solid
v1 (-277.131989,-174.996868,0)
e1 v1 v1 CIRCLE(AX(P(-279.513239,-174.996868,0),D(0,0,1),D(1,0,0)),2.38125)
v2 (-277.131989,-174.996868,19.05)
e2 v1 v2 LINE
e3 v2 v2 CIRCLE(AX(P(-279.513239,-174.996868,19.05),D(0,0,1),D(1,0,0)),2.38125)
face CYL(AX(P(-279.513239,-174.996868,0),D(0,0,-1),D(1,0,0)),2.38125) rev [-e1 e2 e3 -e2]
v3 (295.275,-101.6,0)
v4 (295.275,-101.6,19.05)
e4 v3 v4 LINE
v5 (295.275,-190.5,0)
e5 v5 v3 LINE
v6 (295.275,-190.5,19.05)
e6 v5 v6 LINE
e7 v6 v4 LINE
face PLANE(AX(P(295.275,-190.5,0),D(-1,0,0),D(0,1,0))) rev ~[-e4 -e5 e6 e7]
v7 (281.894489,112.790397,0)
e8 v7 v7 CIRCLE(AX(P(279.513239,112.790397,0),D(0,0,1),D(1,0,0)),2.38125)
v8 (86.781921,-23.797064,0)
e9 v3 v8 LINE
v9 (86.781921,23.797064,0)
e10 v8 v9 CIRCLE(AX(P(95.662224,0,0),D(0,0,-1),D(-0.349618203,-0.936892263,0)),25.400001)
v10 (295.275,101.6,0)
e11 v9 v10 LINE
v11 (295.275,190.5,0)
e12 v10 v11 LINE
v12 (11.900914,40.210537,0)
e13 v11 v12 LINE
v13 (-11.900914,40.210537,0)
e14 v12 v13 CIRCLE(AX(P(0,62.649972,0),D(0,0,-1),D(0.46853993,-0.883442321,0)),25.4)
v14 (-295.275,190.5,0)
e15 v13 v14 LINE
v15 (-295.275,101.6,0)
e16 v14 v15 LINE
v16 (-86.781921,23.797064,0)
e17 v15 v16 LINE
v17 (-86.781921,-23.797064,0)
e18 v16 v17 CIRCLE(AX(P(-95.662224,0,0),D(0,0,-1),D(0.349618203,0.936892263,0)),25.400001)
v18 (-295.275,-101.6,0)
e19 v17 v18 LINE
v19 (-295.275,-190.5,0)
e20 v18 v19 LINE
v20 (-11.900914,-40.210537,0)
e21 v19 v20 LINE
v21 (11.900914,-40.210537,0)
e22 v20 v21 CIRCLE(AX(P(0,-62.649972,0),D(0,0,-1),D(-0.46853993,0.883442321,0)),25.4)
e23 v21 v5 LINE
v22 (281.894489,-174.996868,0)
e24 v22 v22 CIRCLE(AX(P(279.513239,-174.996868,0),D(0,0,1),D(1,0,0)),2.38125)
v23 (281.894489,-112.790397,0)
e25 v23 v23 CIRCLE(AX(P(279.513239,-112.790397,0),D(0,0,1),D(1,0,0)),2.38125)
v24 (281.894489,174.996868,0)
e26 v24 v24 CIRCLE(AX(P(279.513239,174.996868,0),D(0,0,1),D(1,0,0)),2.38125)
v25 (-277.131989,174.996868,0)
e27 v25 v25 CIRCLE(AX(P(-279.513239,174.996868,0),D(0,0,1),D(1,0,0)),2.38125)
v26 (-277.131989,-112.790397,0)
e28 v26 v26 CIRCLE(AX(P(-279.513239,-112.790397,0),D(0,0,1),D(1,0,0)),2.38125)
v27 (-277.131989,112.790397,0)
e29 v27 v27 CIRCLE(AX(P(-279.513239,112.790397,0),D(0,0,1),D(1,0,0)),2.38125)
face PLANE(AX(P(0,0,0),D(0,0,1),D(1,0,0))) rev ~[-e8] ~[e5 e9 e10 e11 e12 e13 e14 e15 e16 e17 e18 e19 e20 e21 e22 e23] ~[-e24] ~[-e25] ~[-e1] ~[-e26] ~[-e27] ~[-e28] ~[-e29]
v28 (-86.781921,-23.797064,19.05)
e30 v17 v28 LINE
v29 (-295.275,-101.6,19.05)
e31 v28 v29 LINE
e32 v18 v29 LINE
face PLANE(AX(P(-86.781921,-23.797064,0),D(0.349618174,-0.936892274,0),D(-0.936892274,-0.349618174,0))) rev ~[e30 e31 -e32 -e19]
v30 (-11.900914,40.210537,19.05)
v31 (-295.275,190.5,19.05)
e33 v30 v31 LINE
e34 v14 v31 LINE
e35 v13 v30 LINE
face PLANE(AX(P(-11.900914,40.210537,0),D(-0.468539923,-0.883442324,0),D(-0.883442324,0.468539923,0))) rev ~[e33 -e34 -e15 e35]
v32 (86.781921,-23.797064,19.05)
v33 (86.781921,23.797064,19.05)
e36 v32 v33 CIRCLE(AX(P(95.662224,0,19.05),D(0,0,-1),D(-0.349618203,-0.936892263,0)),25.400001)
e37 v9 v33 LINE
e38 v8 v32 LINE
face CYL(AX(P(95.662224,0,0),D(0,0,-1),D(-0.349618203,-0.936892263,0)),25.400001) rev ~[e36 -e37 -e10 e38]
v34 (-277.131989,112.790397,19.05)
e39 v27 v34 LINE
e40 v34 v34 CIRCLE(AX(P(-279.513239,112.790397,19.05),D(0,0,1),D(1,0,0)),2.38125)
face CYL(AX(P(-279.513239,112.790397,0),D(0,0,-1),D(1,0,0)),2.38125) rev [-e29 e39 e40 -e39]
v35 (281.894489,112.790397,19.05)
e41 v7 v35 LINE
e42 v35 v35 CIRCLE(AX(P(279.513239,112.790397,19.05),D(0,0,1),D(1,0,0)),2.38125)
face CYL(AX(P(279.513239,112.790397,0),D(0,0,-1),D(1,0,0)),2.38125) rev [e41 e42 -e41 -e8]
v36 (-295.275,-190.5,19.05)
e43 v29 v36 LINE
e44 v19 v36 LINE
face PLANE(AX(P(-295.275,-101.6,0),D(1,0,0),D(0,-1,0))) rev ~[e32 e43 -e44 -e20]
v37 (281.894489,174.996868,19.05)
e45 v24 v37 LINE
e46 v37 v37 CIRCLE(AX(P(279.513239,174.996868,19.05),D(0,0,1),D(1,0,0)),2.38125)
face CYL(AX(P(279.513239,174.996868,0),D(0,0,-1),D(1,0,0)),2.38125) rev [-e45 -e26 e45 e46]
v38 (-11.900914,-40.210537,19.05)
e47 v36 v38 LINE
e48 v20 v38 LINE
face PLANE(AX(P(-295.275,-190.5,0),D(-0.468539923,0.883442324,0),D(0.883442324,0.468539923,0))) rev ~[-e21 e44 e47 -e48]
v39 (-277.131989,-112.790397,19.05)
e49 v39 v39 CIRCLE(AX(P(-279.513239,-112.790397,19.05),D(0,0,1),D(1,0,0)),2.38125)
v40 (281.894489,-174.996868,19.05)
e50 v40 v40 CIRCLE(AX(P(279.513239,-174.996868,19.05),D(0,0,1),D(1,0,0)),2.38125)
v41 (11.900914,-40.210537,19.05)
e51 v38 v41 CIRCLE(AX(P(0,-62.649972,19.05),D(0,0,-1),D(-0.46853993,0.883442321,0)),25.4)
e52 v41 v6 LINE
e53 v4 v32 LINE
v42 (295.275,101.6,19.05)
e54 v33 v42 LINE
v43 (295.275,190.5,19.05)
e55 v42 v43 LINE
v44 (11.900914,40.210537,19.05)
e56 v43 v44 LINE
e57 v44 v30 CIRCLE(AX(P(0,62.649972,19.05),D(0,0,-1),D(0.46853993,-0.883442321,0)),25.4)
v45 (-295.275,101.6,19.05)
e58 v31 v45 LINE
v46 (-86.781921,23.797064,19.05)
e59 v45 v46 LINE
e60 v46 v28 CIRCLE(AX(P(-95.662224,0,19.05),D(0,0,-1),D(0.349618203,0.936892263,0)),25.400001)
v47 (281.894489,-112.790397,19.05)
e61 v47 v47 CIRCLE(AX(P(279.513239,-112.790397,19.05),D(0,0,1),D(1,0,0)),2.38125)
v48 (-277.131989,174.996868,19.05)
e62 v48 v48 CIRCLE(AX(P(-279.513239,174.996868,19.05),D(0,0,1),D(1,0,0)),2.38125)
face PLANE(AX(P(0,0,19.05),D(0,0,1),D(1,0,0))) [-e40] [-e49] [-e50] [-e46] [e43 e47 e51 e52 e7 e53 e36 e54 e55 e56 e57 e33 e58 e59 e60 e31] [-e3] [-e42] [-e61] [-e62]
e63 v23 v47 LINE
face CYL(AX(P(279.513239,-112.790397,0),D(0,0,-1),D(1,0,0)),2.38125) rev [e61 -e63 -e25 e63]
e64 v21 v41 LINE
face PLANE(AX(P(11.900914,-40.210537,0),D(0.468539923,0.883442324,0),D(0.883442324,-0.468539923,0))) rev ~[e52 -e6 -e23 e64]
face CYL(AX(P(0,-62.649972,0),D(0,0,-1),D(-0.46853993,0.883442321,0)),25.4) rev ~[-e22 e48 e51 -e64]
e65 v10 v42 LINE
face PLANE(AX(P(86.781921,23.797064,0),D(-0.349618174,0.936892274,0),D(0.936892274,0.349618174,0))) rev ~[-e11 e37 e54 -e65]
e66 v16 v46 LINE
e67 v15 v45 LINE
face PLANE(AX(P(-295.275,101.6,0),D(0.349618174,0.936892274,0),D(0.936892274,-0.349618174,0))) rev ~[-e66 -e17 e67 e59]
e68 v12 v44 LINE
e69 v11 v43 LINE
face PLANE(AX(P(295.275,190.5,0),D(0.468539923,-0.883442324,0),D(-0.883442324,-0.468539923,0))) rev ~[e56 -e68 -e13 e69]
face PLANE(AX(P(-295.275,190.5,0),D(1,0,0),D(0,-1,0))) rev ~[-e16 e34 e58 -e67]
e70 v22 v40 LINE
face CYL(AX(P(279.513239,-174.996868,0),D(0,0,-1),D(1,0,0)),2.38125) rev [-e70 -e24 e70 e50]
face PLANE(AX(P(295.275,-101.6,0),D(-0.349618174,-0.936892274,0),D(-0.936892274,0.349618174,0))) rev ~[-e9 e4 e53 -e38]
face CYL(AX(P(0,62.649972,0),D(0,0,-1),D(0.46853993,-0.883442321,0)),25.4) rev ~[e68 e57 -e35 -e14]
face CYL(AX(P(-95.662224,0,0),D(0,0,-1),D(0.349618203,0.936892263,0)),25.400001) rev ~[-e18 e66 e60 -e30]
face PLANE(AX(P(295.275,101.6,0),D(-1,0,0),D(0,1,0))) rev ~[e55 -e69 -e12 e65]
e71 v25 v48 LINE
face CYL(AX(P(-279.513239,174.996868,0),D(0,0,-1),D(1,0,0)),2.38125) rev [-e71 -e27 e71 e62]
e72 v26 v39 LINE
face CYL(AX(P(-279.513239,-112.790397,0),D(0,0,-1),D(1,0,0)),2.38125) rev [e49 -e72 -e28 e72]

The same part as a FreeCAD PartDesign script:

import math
import FreeCAD as App
import Part
import Sketcher

V = App.Vector
Q = App.Units.Quantity

doc = App.newDocument("Part")
params = doc.addObject("Spreadsheet::Sheet", "Params")
for row, (alias, value) in enumerate([
    ("sketch1_radius", "1 in"),
    ("sketch1_radius2", "1 in"),
    ("sketch1_radius3", "1 in"),
    ("sketch1_radius4", "1 in"),
    ("sketch1_diameter", "0.1875 in"),
    ("pad1_length", "0.75 in"),
], start=1):
    params.set(f"A{row}", alias)
    params.set(f"B{row}", "=" + value)
    params.setAlias(f"B{row}", alias)

body = doc.addObject("PartDesign::Body", "Body")

# Sketch on XY plane
sketch1 = body.newObject("Sketcher::SketchObject", "Sketch")
sketch1.AttachmentSupport = (doc.getObject("XY_Plane"), [""])
sketch1.MapMode = "FlatFace"
sketch1.addGeometry([
    Part.LineSegment(V(-11.900914, 40.210537, 0), V(-295.275, 190.5, 0)),  # 0
    Part.LineSegment(V(-295.275, 190.5, 0), V(-295.275, 101.6, 0)),  # 1
    Part.LineSegment(V(-295.275, 101.6, 0), V(-86.781921, 23.797064, 0)),  # 2
    Part.ArcOfCircle(Part.Circle(V(-95.662224, 0, 0), V(0, 0, 1), 25.400001), math.radians(-69.536035), math.radians(69.536035)),  # 3
    Part.LineSegment(V(-86.781921, -23.797064, 0), V(-295.275, -101.6, 0)),  # 4
    Part.LineSegment(V(-295.275, -101.6, 0), V(-295.275, -190.5, 0)),  # 5
    Part.LineSegment(V(-295.275, -190.5, 0), V(-11.900914, -40.210537, 0)),  # 6
    Part.ArcOfCircle(Part.Circle(V(0, -62.649972, 0), V(0, 0, 1), 25.4), math.radians(62.060438), math.radians(117.939562)),  # 7
    Part.LineSegment(V(11.900914, -40.210537, 0), V(295.275, -190.5, 0)),  # 8
    Part.LineSegment(V(295.275, -190.5, 0), V(295.275, -101.6, 0)),  # 9
    Part.LineSegment(V(295.275, -101.6, 0), V(86.781921, -23.797064, 0)),  # 10
    Part.ArcOfCircle(Part.Circle(V(95.662224, 0, 0), V(0, 0, 1), 25.400001), math.radians(110.463965), math.radians(249.536035)),  # 11
    Part.LineSegment(V(86.781921, 23.797064, 0), V(295.275, 101.6, 0)),  # 12
    Part.LineSegment(V(295.275, 101.6, 0), V(295.275, 190.5, 0)),  # 13
    Part.LineSegment(V(295.275, 190.5, 0), V(11.900914, 40.210537, 0)),  # 14
    Part.ArcOfCircle(Part.Circle(V(0, 62.649972, 0), V(0, 0, 1), 25.4), math.radians(-117.939562), math.radians(-62.060438)),  # 15
    Part.Circle(V(-279.513239, -174.996868, 0), V(0, 0, 1), 2.38125),  # 16
    Part.Circle(V(-279.513239, -112.790397, 0), V(0, 0, 1), 2.38125),  # 17
    Part.Circle(V(279.513239, -174.996868, 0), V(0, 0, 1), 2.38125),  # 18
    Part.Circle(V(279.513239, -112.790397, 0), V(0, 0, 1), 2.38125),  # 19
    Part.Circle(V(-279.513239, 112.790397, 0), V(0, 0, 1), 2.38125),  # 20
    Part.Circle(V(-279.513239, 174.996868, 0), V(0, 0, 1), 2.38125),  # 21
    Part.Circle(V(279.513239, 112.790397, 0), V(0, 0, 1), 2.38125),  # 22
    Part.Circle(V(279.513239, 174.996868, 0), V(0, 0, 1), 2.38125),  # 23
], False)
sketch1.addConstraint([
    Sketcher.Constraint("Coincident", 0, 2, 1, 1),
    Sketcher.Constraint("Coincident", 1, 2, 2, 1),
    Sketcher.Constraint("Coincident", 2, 2, 3, 2),
    Sketcher.Constraint("Coincident", 3, 1, 4, 1),
    Sketcher.Constraint("Coincident", 4, 2, 5, 1),
    Sketcher.Constraint("Coincident", 5, 2, 6, 1),
    Sketcher.Constraint("Coincident", 6, 2, 7, 2),
    Sketcher.Constraint("Coincident", 7, 1, 8, 1),
    Sketcher.Constraint("Coincident", 8, 2, 9, 1),
    Sketcher.Constraint("Coincident", 9, 2, 10, 1),
    Sketcher.Constraint("Coincident", 10, 2, 11, 2),
    Sketcher.Constraint("Coincident", 11, 1, 12, 1),
    Sketcher.Constraint("Coincident", 12, 2, 13, 1),
    Sketcher.Constraint("Coincident", 13, 2, 14, 1),
    Sketcher.Constraint("Coincident", 14, 2, 15, 2),
    Sketcher.Constraint("Coincident", 15, 1, 0, 1),
    Sketcher.Constraint("Vertical", 1),
    Sketcher.Constraint("Vertical", 5),
    Sketcher.Constraint("Vertical", 9),
    Sketcher.Constraint("Vertical", 13),
    Sketcher.Constraint("PointOnObject", 3, 3, -1),
    Sketcher.Constraint("PointOnObject", 7, 3, -2),
    Sketcher.Constraint("PointOnObject", 11, 3, -1),
    Sketcher.Constraint("PointOnObject", 15, 3, -2),
    Sketcher.Constraint("Radius", 3, Q("1 in")),
    Sketcher.Constraint("Radius", 7, Q("1 in")),
    Sketcher.Constraint("Radius", 11, Q("1 in")),
    Sketcher.Constraint("Radius", 15, Q("1 in")),
    Sketcher.Constraint("Diameter", 16, Q("0.1875 in")),
    Sketcher.Constraint("Diameter", 17, Q("0.1875 in")),
    Sketcher.Constraint("Diameter", 18, Q("0.1875 in")),
    Sketcher.Constraint("Diameter", 19, Q("0.1875 in")),
    Sketcher.Constraint("Diameter", 20, Q("0.1875 in")),
    Sketcher.Constraint("Diameter", 21, Q("0.1875 in")),
    Sketcher.Constraint("Diameter", 22, Q("0.1875 in")),
    Sketcher.Constraint("Diameter", 23, Q("0.1875 in")),
    Sketcher.Constraint("DistanceY", 1, 2, 1, 1, Q("3.5 in")),
    Sketcher.Constraint("DistanceY", 5, 2, 5, 1, Q("3.5 in")),
    Sketcher.Constraint("DistanceY", 9, 1, 9, 2, Q("3.5 in")),
    Sketcher.Constraint("DistanceY", 13, 1, 13, 2, Q("3.5 in")),
    Sketcher.Constraint("DistanceY", -1, 1, 1, 2, Q("4 in")),
    Sketcher.Constraint("DistanceY", 4, 2, -1, 1, Q("4 in")),
    Sketcher.Constraint("DistanceY", 9, 2, -1, 1, Q("4 in")),
    Sketcher.Constraint("DistanceY", -1, 1, 12, 2, Q("4 in")),
    Sketcher.Constraint("DistanceX", 0, 2, -1, 1, Q("11.625 in")),
    Sketcher.Constraint("DistanceX", 4, 2, -1, 1, Q("11.625 in")),
    Sketcher.Constraint("DistanceX", -1, 1, 8, 2, Q("11.625 in")),
    Sketcher.Constraint("DistanceX", -1, 1, 12, 2, Q("11.625 in")),
    Sketcher.Constraint("DistanceY", 6, 2, 2, 2, Q("64.007601 mm")),
    Sketcher.Constraint("DistanceY", 7, 1, 11, 1, Q("64.007601 mm")),
    Sketcher.Constraint("DistanceY", 6, 2, 11, 1, Q("64.007601 mm")),
    Sketcher.Constraint("DistanceY", 7, 3, -1, 1, Q("62.649972 mm")),
    Sketcher.Constraint("DistanceY", -1, 1, 15, 3, Q("62.649972 mm")),
    Sketcher.Constraint("DistanceX", 16, 3, -1, 1, Q("279.513239 mm")),
    Sketcher.Constraint("DistanceY", 16, 3, -1, 1, Q("174.996868 mm")),
    Sketcher.Constraint("DistanceX", 17, 3, -1, 1, Q("279.513239 mm")),
    Sketcher.Constraint("DistanceX", -1, 1, 18, 3, Q("279.513239 mm")),
    Sketcher.Constraint("DistanceY", 18, 3, -1, 1, Q("174.996868 mm")),
    Sketcher.Constraint("DistanceX", -1, 1, 19, 3, Q("279.513239 mm")),
    Sketcher.Constraint("DistanceX", 20, 3, -1, 1, Q("279.513239 mm")),
    Sketcher.Constraint("DistanceX", 21, 3, -1, 1, Q("279.513239 mm")),
    Sketcher.Constraint("DistanceY", -1, 1, 21, 3, Q("174.996868 mm")),
    Sketcher.Constraint("DistanceX", -1, 1, 22, 3, Q("279.513239 mm")),
    Sketcher.Constraint("DistanceX", -1, 1, 23, 3, Q("279.513239 mm")),
    Sketcher.Constraint("DistanceY", -1, 1, 23, 3, Q("174.996868 mm")),
    Sketcher.Constraint("DistanceX", 2, 2, -1, 1, Q("86.781921 mm")),
    Sketcher.Constraint("DistanceX", 3, 1, -1, 1, Q("86.781921 mm")),
    Sketcher.Constraint("DistanceX", -1, 1, 10, 2, Q("86.781921 mm")),
    Sketcher.Constraint("DistanceX", -1, 1, 11, 1, Q("86.781921 mm")),
    Sketcher.Constraint("DistanceY", 16, 3, 17, 3, Q("62.206471 mm")),
    Sketcher.Constraint("DistanceY", 18, 3, 19, 3, Q("62.206471 mm")),
    Sketcher.Constraint("DistanceY", 7, 3, 20, 3, Q("175.440369 mm")),
    Sketcher.Constraint("DistanceY", 7, 3, 22, 3, Q("175.440369 mm")),
    Sketcher.Constraint("DistanceY", 3, 1, 2, 2, Q("47.594128 mm")),
    Sketcher.Constraint("DistanceX", 6, 2, 14, 2, Q("23.801828 mm")),
    Sketcher.Constraint("Distance", 0, Q("320.761275 mm")),
])
sketch1.setExpression("Constraints[24]", "Params.sketch1_radius")
sketch1.setExpression("Constraints[25]", "Params.sketch1_radius2")
sketch1.setExpression("Constraints[26]", "Params.sketch1_radius3")
sketch1.setExpression("Constraints[27]", "Params.sketch1_radius4")
sketch1.setExpression("Constraints[28]", "Params.sketch1_diameter")
pad1 = body.newObject("PartDesign::Pad", "Pad")
pad1.Profile = sketch1
pad1.setExpression("Length", "Params.pad1_length")

doc.recompute()
